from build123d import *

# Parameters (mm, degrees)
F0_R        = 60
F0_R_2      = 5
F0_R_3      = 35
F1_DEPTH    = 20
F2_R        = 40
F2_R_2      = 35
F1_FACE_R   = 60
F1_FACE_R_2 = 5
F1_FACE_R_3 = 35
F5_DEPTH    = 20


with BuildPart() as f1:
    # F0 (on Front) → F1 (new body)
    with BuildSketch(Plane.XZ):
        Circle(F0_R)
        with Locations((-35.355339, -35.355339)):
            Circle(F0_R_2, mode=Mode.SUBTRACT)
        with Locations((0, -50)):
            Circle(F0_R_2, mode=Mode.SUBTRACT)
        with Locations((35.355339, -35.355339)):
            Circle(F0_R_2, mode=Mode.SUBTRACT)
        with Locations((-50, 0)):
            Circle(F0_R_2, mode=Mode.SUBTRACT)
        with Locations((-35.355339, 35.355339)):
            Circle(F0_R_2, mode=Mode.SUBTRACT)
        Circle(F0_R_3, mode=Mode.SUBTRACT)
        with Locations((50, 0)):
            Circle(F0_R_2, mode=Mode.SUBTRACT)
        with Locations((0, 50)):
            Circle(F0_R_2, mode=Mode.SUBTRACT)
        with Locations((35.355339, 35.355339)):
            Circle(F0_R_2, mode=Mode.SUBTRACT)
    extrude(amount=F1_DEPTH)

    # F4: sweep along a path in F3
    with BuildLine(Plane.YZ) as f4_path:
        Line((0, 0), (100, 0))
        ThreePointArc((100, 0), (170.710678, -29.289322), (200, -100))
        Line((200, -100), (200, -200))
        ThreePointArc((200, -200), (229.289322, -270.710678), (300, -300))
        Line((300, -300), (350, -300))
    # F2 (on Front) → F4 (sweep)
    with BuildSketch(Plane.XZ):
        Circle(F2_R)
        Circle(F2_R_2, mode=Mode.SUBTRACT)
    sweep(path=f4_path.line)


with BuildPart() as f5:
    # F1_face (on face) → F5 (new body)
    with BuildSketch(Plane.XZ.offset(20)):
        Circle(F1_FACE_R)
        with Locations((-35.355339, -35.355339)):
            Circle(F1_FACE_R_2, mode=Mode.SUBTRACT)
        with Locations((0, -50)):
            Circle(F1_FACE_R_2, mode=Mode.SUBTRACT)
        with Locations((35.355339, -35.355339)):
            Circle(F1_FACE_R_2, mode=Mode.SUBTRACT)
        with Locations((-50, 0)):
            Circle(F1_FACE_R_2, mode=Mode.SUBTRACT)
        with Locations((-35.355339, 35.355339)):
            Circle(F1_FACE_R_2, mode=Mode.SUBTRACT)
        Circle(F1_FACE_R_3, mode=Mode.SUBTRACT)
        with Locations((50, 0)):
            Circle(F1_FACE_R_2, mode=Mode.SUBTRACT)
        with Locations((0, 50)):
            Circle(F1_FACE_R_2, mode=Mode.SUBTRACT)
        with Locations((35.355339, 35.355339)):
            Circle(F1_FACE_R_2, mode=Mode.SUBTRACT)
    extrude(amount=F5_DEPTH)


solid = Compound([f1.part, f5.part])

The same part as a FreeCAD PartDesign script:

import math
import FreeCAD as App
import Part
import Sketcher

V = App.Vector

doc = App.newDocument("Part")
body = doc.addObject("PartDesign::Body", "Body")

sketch1 = body.newObject("Sketcher::SketchObject", "Sketch")
sketch1.AttachmentSupport = (doc.getObject("XZ_Plane"), [""])
sketch1.MapMode = "FlatFace"
sketch1.addGeometry([
    Part.Circle(V(0, 0, 0), V(0, 0, 1), 60),
    Part.Circle(V(-35, -35, 0), V(0, 0, 1), 5),
    Part.Circle(V(0, -50, 0), V(0, 0, 1), 5),
    Part.Circle(V(35, -35, 0), V(0, 0, 1), 5),
    Part.Circle(V(-50, 0, 0), V(0, 0, 1), 5),
    Part.Circle(V(-35, 35, 0), V(0, 0, 1), 5),
    Part.Circle(V(0, 0, 0), V(0, 0, 1), 35),
    Part.Circle(V(50, 0, 0), V(0, 0, 1), 5),
    Part.Circle(V(0, 50, 0), V(0, 0, 1), 5),
    Part.Circle(V(35, 35, 0), V(0, 0, 1), 5),
], False)
sketch1.addConstraint([
    Sketcher.Constraint("Coincident", 0, 3, -1, 1),
    Sketcher.Constraint("Coincident", 6, 3, -1, 1),
    Sketcher.Constraint("Equal", 1, 2),
    Sketcher.Constraint("Equal", 2, 3),
    Sketcher.Constraint("Equal", 3, 4),
    Sketcher.Constraint("Equal", 4, 5),
    Sketcher.Constraint("Equal", 5, 7),
    Sketcher.Constraint("Equal", 7, 8),
    Sketcher.Constraint("Equal", 8, 9),
    Sketcher.Constraint("Symmetric", 3, 3, 5, 3, -1, 1),
    Sketcher.Constraint("Symmetric", 4, 3, 7, 3, -1, 1),
    Sketcher.Constraint("Symmetric", 2, 3, 8, 3, -1, 1),
    Sketcher.Constraint("Symmetric", 1, 3, 9, 3, -1, 1),
    Sketcher.Constraint("Symmetric", 1, 3, 3, 3, -2),
    Sketcher.Constraint("PointOnObject", 2, 3, -2),
    Sketcher.Constraint("PointOnObject", 4, 3, -1),
    Sketcher.Constraint("Diameter", 0, 120.0),
    Sketcher.Constraint("Diameter", 1, 10.0),
    Sketcher.Constraint("Diameter", 6, 70.0),
    Sketcher.Constraint("DistanceY", 2, 3, -1, 1, 50.0),
    Sketcher.Constraint("DistanceX", 4, 3, -1, 1, 50.0),
    Sketcher.Constraint("DistanceX", 1, 3, -1, 1, 35.355339),
    Sketcher.Constraint("DistanceY", 1, 3, -1, 1, 35.355339),
])
pad1 = body.newObject("PartDesign::Pad", "Pad")
pad1.Profile = sketch1
pad1.Length = 20

sketch2 = body.newObject("Sketcher::SketchObject", "Sketch001")
sketch2.AttachmentSupport = (doc.getObject("XZ_Plane"), [""])
sketch2.MapMode = "FlatFace"
sketch2.addGeometry([
    Part.Circle(V(0, 0, 0), V(0, 0, 1), 40),
    Part.Circle(V(0, 0, 0), V(0, 0, 1), 35),
], False)
sketch2.addConstraint([
    Sketcher.Constraint("Coincident", 0, 3, -1, 1),
    Sketcher.Constraint("Coincident", 1, 3, -1, 1),
    Sketcher.Constraint("Diameter", 0, 80.0),
    Sketcher.Constraint("Diameter", 1, 70.0),
])

sketch3 = body.newObject("Sketcher::SketchObject", "Sketch002")
sketch3.AttachmentSupport = (doc.getObject("YZ_Plane"), [""])
sketch3.MapMode = "FlatFace"
sketch3.addGeometry([
    Part.LineSegment(V(0, 0, 0), V(100, 0, 0)),
    Part.ArcOfCircle(Part.Circle(V(100, -100, 0), V(0, 0, 1), 100), math.radians(0), math.radians(90)),
    Part.LineSegment(V(200, -100, 0), V(200, -200, 0)),
    Part.ArcOfCircle(Part.Circle(V(300, -200, 0), V(0, 0, 1), 100), math.radians(-180), math.radians(-90)),
    Part.LineSegment(V(300, -300, 0), V(350, -300, 0)),
], False)
sketch3.addConstraint([
    Sketcher.Constraint("Tangent", 0, 2, 1, 2),
    Sketcher.Constraint("Tangent", 1, 1, 2, 1),
    Sketcher.Constraint("Tangent", 2, 2, 3, 1),
    Sketcher.Constraint("Tangent", 3, 2, 4, 1),
    Sketcher.Constraint("Horizontal", 0),
    Sketcher.Constraint("Vertical", 2),
    Sketcher.Constraint("Horizontal", 4),
    Sketcher.Constraint("Coincident", 0, 1, -1, 1),
    Sketcher.Constraint("Equal", 1, 3),
    Sketcher.Constraint("Equal", 0, 2),
    Sketcher.Constraint("Radius", 1, 100.0),
    Sketcher.Constraint("DistanceX", 0, 1, 0, 2, 100.0),
    Sketcher.Constraint("DistanceX", 4, 1, 4, 2, 50.0),
])
doc.recompute()

additivepipe = body.newObject("PartDesign::AdditivePipe", "AdditivePipe")
additivepipe.Profile = sketch2
additivepipe.Spine = (sketch3, ["Edge1", "Edge2", "Edge3", "Edge4", "Edge5"])
body2 = doc.addObject("PartDesign::Body", "Body001")

sketch4 = body2.newObject("Sketcher::SketchObject", "Sketch003")
sketch4.AttachmentSupport = (doc.getObject("XZ_Plane001"), [""])
sketch4.MapMode = "FlatFace"
sketch4.AttachmentOffset = App.Placement(V(0, 0, 20), App.Rotation())
sketch4.addGeometry([
    Part.Circle(V(0, 0, 0), V(0, 0, 1), 60),
    Part.Circle(V(-35, -35, 0), V(0, 0, 1), 5),
    Part.Circle(V(0, -50, 0), V(0, 0, 1), 5),
    Part.Circle(V(35, -35, 0), V(0, 0, 1), 5),
    Part.Circle(V(-50, 0, 0), V(0, 0, 1), 5),
    Part.Circle(V(-35, 35, 0), V(0, 0, 1), 5),
    Part.Circle(V(0, 0, 0), V(0, 0, 1), 35),
    Part.Circle(V(50, 0, 0), V(0, 0, 1), 5),
    Part.Circle(V(0, 50, 0), V(0, 0, 1), 5),
    Part.Circle(V(35, 35, 0), V(0, 0, 1), 5),
], False)
sketch4.addConstraint([
    Sketcher.Constraint("Coincident", 0, 3, -1, 1),
    Sketcher.Constraint("Coincident", 6, 3, -1, 1),
    Sketcher.Constraint("Equal", 1, 2),
    Sketcher.Constraint("Equal", 2, 3),
    Sketcher.Constraint("Equal", 3, 4),
    Sketcher.Constraint("Equal", 4, 5),
    Sketcher.Constraint("Equal", 5, 7),
    Sketcher.Constraint("Equal", 7, 8),
    Sketcher.Constraint("Equal", 8, 9),
    Sketcher.Constraint("Symmetric", 3, 3, 5, 3, -1, 1),
    Sketcher.Constraint("Symmetric", 4, 3, 7, 3, -1, 1),
    Sketcher.Constraint("Symmetric", 2, 3, 8, 3, -1, 1),
    Sketcher.Constraint("Symmetric", 1, 3, 9, 3, -1, 1),
    Sketcher.Constraint("Symmetric", 1, 3, 3, 3, -2),
    Sketcher.Constraint("PointOnObject", 2, 3, -2),
    Sketcher.Constraint("PointOnObject", 4, 3, -1),
    Sketcher.Constraint("Diameter", 0, 120.0),
    Sketcher.Constraint("Diameter", 1, 10.0),
    Sketcher.Constraint("Diameter", 6, 70.0),
    Sketcher.Constraint("DistanceY", 2, 3, -1, 1, 50.0),
    Sketcher.Constraint("DistanceX", 4, 3, -1, 1, 50.0),
    Sketcher.Constraint("DistanceX", 1, 3, -1, 1, 35.355339),
    Sketcher.Constraint("DistanceY", 1, 3, -1, 1, 35.355339),
])
pad2 = body2.newObject("PartDesign::Pad", "Pad001")
pad2.Profile = sketch4
pad2.Length = 20

doc.recompute()
